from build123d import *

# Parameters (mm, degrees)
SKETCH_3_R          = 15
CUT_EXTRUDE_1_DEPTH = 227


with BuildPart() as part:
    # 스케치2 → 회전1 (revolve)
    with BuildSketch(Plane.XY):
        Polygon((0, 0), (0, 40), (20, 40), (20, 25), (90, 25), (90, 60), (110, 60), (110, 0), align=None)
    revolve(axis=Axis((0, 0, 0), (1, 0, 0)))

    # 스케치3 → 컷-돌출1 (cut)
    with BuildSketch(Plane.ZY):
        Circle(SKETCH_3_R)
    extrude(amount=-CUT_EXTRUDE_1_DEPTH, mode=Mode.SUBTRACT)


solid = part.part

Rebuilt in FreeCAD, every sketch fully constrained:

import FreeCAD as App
import Part
import Sketcher

V = App.Vector


def add_polygon(sketch, points):
    """Adds a closed chain of lines whose ends are joined by coincident constraints."""
    first, n = sketch.GeometryCount, len(points)
    for a, b in zip(points, points[1:] + points[:1]):
        sketch.addGeometry(Part.LineSegment(App.Vector(*a, 0), App.Vector(*b, 0)), False)
    for i in range(n):
        sketch.addConstraint(Sketcher.Constraint("Coincident", first + i, 2, first + (i + 1) % n, 1))

doc = App.newDocument("Part")
params = doc.addObject("Spreadsheet::Sheet", "Params")
for row, (alias, value) in enumerate([
    ("sketch1_width", "110 mm"),
    ("sketch1_width2", "20 mm"),
    ("sketch1_height", "40 mm"),
    ("sketch1_height2", "60 mm"),
    ("sketch1_height3", "35 mm"),
    ("revolution_angle", "360 deg"),
    ("sketch2_diameter", "30 mm"),
    ("pocket1_length", "227 mm"),
], start=1):
    params.set(f"A{row}", alias)
    params.set(f"B{row}", "=" + value)
    params.setAlias(f"B{row}", alias)

body = doc.addObject("PartDesign::Body", "Body")

# Sketch on XY plane
sketch1 = doc.addObject("Sketcher::SketchObject", "Sketch")
body.addObject(sketch1)
sketch1.AttachmentSupport = (doc.XY_Plane, [""])
sketch1.MapMode = "FlatFace"
add_polygon(sketch1, [(0, 40), (0, 0), (110, 0), (110, 60), (90, 60), (90, 25), (20, 25), (20, 40)])  # lines 0-7
sketch1.addConstraint(Sketcher.Constraint("Vertical", 0))
sketch1.addConstraint(Sketcher.Constraint("Horizontal", 1))
sketch1.addConstraint(Sketcher.Constraint("Vertical", 2))
sketch1.addConstraint(Sketcher.Constraint("Horizontal", 3))
sketch1.addConstraint(Sketcher.Constraint("Vertical", 4))
sketch1.addConstraint(Sketcher.Constraint("Horizontal", 5))
sketch1.addConstraint(Sketcher.Constraint("Vertical", 6))
sketch1.addConstraint(Sketcher.Constraint("Horizontal", 7))
sketch1.addConstraint(Sketcher.Constraint("Coincident", 0, 2, -1, 1))
sketch1.addConstraint(Sketcher.Constraint("Equal", 3, 7))
sketch1.addConstraint(Sketcher.Constraint("DistanceX", 1, 1, 1, 2, 110.0))
sketch1.addConstraint(Sketcher.Constraint("DistanceX", 3, 2, 3, 1, 20.0))
sketch1.addConstraint(Sketcher.Constraint("DistanceY", 0, 2, 0, 1, 40.0))
sketch1.addConstraint(Sketcher.Constraint("DistanceY", 2, 1, 2, 2, 60.0))
sketch1.addConstraint(Sketcher.Constraint("DistanceY", 4, 2, 4, 1, 35.0))
sketch1.setExpression("Constraints[18]", "Params.sketch1_width")
sketch1.setExpression("Constraints[19]", "Params.sketch1_width2")
sketch1.setExpression("Constraints[20]", "Params.sketch1_height")
sketch1.setExpression("Constraints[21]", "Params.sketch1_height2")
sketch1.setExpression("Constraints[22]", "Params.sketch1_height3")
revolution = doc.addObject("PartDesign::Revolution", "Revolution")
body.addObject(revolution)
revolution.Profile = sketch1
revolution.ReferenceAxis = (sketch1, ["H_Axis"])
revolution.setExpression("Angle", "Params.revolution_angle")

# Sketch on YZ plane
sketch2 = doc.addObject("Sketcher::SketchObject", "Sketch001")
body.addObject(sketch2)
sketch2.AttachmentSupport = (doc.YZ_Plane, [""])
sketch2.MapMode = "FlatFace"
sketch2.addGeometry(Part.Circle(V(0, 0, 0), V(0, 0, 1), 15), False)
sketch2.addConstraint(Sketcher.Constraint("Coincident", 0, 3, -1, 1))
sketch2.addConstraint(Sketcher.Constraint("Diameter", 0, 30.0))
sketch2.setExpression("Constraints[1]", "Params.sketch2_diameter")
pocket1 = doc.addObject("PartDesign::Pocket", "Pocket")
body.addObject(pocket1)
pocket1.Profile = sketch2
pocket1.setExpression("Length", "Params.pocket1_length")
pocket1.Reversed = True

doc.recompute()
